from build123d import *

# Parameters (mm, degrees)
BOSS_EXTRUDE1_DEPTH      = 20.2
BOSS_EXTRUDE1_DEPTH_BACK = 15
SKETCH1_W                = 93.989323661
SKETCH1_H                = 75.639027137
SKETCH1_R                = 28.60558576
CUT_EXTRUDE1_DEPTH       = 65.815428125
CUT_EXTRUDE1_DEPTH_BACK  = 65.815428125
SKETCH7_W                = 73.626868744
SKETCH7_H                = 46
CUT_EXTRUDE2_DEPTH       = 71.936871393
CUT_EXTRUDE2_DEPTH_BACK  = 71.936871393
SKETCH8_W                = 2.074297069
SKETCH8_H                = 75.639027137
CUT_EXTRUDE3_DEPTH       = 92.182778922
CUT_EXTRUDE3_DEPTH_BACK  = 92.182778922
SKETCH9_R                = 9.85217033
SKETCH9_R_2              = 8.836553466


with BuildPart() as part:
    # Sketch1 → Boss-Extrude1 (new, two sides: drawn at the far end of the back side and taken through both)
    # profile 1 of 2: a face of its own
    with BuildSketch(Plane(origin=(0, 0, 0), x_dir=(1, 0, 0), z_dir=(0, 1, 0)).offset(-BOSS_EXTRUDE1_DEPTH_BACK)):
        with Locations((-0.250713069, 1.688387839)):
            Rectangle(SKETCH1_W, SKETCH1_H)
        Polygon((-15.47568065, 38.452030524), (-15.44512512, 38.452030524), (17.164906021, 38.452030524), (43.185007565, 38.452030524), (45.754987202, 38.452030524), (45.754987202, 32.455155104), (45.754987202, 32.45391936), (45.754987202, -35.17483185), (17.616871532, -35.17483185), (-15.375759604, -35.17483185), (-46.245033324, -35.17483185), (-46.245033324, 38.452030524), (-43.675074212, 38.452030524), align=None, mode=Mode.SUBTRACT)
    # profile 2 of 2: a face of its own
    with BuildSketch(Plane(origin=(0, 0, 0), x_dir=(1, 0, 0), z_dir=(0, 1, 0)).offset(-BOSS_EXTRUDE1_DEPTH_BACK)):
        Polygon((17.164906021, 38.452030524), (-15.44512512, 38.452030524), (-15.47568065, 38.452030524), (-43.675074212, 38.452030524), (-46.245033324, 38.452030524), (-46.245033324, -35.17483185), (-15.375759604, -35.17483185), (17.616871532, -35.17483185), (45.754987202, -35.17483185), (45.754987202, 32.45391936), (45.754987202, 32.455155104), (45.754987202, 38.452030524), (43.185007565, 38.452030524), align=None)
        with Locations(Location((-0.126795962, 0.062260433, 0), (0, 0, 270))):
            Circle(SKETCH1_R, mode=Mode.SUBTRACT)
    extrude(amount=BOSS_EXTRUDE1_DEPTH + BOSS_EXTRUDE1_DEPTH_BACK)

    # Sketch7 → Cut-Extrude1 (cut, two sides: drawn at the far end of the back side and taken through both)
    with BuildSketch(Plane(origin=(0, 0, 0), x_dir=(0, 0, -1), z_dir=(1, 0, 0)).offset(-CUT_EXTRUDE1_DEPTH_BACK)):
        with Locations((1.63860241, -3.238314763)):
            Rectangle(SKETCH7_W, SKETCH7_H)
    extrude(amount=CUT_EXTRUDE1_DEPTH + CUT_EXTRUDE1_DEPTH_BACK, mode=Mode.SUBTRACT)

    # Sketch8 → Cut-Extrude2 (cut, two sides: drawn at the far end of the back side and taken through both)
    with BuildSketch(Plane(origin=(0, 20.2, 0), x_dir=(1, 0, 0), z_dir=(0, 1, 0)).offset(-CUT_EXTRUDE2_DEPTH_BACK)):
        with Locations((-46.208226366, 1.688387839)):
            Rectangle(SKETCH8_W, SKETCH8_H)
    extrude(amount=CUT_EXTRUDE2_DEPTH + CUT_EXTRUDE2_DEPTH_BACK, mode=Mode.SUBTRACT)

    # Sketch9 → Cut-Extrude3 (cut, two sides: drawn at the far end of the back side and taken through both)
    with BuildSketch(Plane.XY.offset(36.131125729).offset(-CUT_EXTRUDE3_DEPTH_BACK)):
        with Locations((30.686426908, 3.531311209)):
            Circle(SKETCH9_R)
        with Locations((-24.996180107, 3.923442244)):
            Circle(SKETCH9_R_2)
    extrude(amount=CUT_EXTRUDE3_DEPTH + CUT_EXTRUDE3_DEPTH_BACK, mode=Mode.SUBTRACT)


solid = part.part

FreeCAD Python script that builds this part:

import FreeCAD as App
import Part
import Sketcher
Q = App.Units.Quantity

doc = App.newDocument("Part")
body = doc.addObject("PartDesign::Body", "Body")

sketch1 = body.newObject("Sketcher::SketchObject", "Sketch")
sketch1.AttachmentSupport = (doc.getObject("XZ_Plane"), [""])
sketch1.MapMode = "FlatFace"
sketch1.addGeometry(Part.LineSegment(App.Vector(-47, -40, 0), App.Vector(-47, 36, 0)), False)
sketch1.addGeometry(Part.LineSegment(App.Vector(-47, 36, 0), App.Vector(47, 36, 0)), False)
sketch1.addGeometry(Part.LineSegment(App.Vector(47, 36, 0), App.Vector(47, -40, 0)), False)
sketch1.addGeometry(Part.LineSegment(App.Vector(47, -40, 0), App.Vector(-47, -40, 0)), False)
sketch1.addGeometry(Part.Circle(App.Vector(0, 0, 0), App.Vector(0, 0, 1), 29), False)
sketch1.addConstraint(Sketcher.Constraint("Coincident", 0, 2, 1, 1))
sketch1.addConstraint(Sketcher.Constraint("Coincident", 1, 2, 2, 1))
sketch1.addConstraint(Sketcher.Constraint("Coincident", 2, 2, 3, 1))
sketch1.addConstraint(Sketcher.Constraint("Coincident", 3, 2, 0, 1))
sketch1.addConstraint(Sketcher.Constraint("Vertical", 0))
sketch1.addConstraint(Sketcher.Constraint("Horizontal", 1))
sketch1.addConstraint(Sketcher.Constraint("Vertical", 2))
sketch1.addConstraint(Sketcher.Constraint("Horizontal", 3))
sketch1.addConstraint(Sketcher.Constraint("Diameter", 4, Q("57.211172 mm")))
sketch1.addConstraint(Sketcher.Constraint("DistanceY", 2, 2, -1, 1, Q("39.507901 mm")))
sketch1.addConstraint(Sketcher.Constraint("DistanceX", 1, 1, 1, 2, Q("93.989324 mm")))
sketch1.addConstraint(Sketcher.Constraint("DistanceY", 0, 1, 0, 2, Q("75.639027 mm")))
sketch1.addConstraint(Sketcher.Constraint("DistanceY", 4, 3, -1, 1, Q("0.06226 mm")))
sketch1.addConstraint(Sketcher.Constraint("DistanceX", -1, 1, 1, 2, Q("46.743949 mm")))
sketch1.addConstraint(Sketcher.Constraint("DistanceX", 0, 2, 4, 3, Q("47.118579 mm")))
pad1 = body.newObject("PartDesign::Pad", "Pad")
pad1.Profile = sketch1
pad1.Type = "TwoLengths"
pad1.Length = 20.2
pad1.Length2 = 15
pad1.Reversed = True

sketch2 = body.newObject("Sketcher::SketchObject", "Sketch001")
sketch2.AttachmentSupport = (doc.getObject("YZ_Plane"), [""])
sketch2.MapMode = "FlatFace"
sketch2.addGeometry(Part.LineSegment(App.Vector(20, 35, 0), App.Vector(-26, 35, 0)), False)
sketch2.addGeometry(Part.LineSegment(App.Vector(-26, 35, 0), App.Vector(-26, -38, 0)), False)
sketch2.addGeometry(Part.LineSegment(App.Vector(-26, -38, 0), App.Vector(20, -38, 0)), False)
sketch2.addGeometry(Part.LineSegment(App.Vector(20, -38, 0), App.Vector(20, 35, 0)), False)
sketch2.addConstraint(Sketcher.Constraint("Coincident", 0, 2, 1, 1))
sketch2.addConstraint(Sketcher.Constraint("Coincident", 1, 2, 2, 1))
sketch2.addConstraint(Sketcher.Constraint("Coincident", 2, 2, 3, 1))
sketch2.addConstraint(Sketcher.Constraint("Coincident", 3, 2, 0, 1))
sketch2.addConstraint(Sketcher.Constraint("Horizontal", 0))
sketch2.addConstraint(Sketcher.Constraint("Vertical", 1))
sketch2.addConstraint(Sketcher.Constraint("Horizontal", 2))
sketch2.addConstraint(Sketcher.Constraint("Vertical", 3))
sketch2.addConstraint(Sketcher.Constraint("DistanceX", 0, 2, 0, 1, Q("46 mm")))
sketch2.addConstraint(Sketcher.Constraint("DistanceY", 1, 2, 1, 1, Q("73.626869 mm")))
sketch2.addConstraint(Sketcher.Constraint("DistanceY", -1, 1, 0, 2, Q("35.174832 mm")))
sketch2.addConstraint(Sketcher.Constraint("DistanceX", 0, 2, -1, 1, Q("26.238315 mm")))
pocket1 = body.newObject("PartDesign::Pocket", "Pocket")
pocket1.Profile = sketch2
pocket1.Type = "ThroughAll"
pocket1.Midplane = True

sketch3 = body.newObject("Sketcher::SketchObject", "Sketch002")
sketch3.AttachmentSupport = (doc.getObject("XZ_Plane"), [""])
sketch3.MapMode = "FlatFace"
sketch3.AttachmentOffset = App.Placement(App.Vector(0, 0, -20.2), App.Rotation())
sketch3.addGeometry(Part.LineSegment(App.Vector(-47.2, -39.5, 0), App.Vector(-47.2, 36.1, 0)), False)
sketch3.addGeometry(Part.LineSegment(App.Vector(-47.2, 36.1, 0), App.Vector(-45.2, 36.1, 0)), False)
sketch3.addGeometry(Part.LineSegment(App.Vector(-45.2, 36.1, 0), App.Vector(-45.2, -39.5, 0)), False)
sketch3.addGeometry(Part.LineSegment(App.Vector(-45.2, -39.5, 0), App.Vector(-47.2, -39.5, 0)), False)
sketch3.addConstraint(Sketcher.Constraint("Coincident", 0, 2, 1, 1))
sketch3.addConstraint(Sketcher.Constraint("Coincident", 1, 2, 2, 1))
sketch3.addConstraint(Sketcher.Constraint("Coincident", 2, 2, 3, 1))
sketch3.addConstraint(Sketcher.Constraint("Coincident", 3, 2, 0, 1))
sketch3.addConstraint(Sketcher.Constraint("Vertical", 0))
sketch3.addConstraint(Sketcher.Constraint("Horizontal", 1))
sketch3.addConstraint(Sketcher.Constraint("Vertical", 2))
sketch3.addConstraint(Sketcher.Constraint("Horizontal", 3))
sketch3.addConstraint(Sketcher.Constraint("DistanceY", 2, 2, -1, 1, Q("39.507901 mm")))
sketch3.addConstraint(Sketcher.Constraint("DistanceX", 1, 1, 1, 2, Q("2.074297 mm")))
sketch3.addConstraint(Sketcher.Constraint("DistanceY", 0, 1, 0, 2, Q("75.639027 mm")))
sketch3.addConstraint(Sketcher.Constraint("DistanceX", 0, 2, -1, 1, Q("47.245375 mm")))
pocket2 = body.newObject("PartDesign::Pocket", "Pocket001")
pocket2.Profile = sketch3
pocket2.Type = "ThroughAll"
pocket2.Midplane = True

sketch4 = body.newObject("Sketcher::SketchObject", "Sketch003")
sketch4.AttachmentSupport = (doc.getObject("XY_Plane"), [""])
sketch4.MapMode = "FlatFace"
sketch4.AttachmentOffset = App.Placement(App.Vector(0, 0, 36.131126), App.Rotation())
sketch4.addGeometry(Part.Circle(App.Vector(31, 4, 0), App.Vector(0, 0, 1), 10), False)
sketch4.addGeometry(Part.Circle(App.Vector(-25, 4, 0), App.Vector(0, 0, 1), 9), False)
sketch4.addConstraint(Sketcher.Constraint("Diameter", 0, Q("19.704341 mm")))
sketch4.addConstraint(Sketcher.Constraint("Diameter", 1, Q("17.673107 mm")))
sketch4.addConstraint(Sketcher.Constraint("DistanceY", -1, 1, 0, 3, Q("3.531311 mm")))
sketch4.addConstraint(Sketcher.Constraint("DistanceX", 1, 3, -1, 1, Q("24.99618 mm")))
sketch4.addConstraint(Sketcher.Constraint("DistanceY", 0, 3, 1, 3, Q("0.392131 mm")))
sketch4.addConstraint(Sketcher.Constraint("DistanceX", -1, 1, 0, 3, Q("30.686427 mm")))
pocket3 = body.newObject("PartDesign::Pocket", "Pocket002")
pocket3.Profile = sketch4
pocket3.Type = "ThroughAll"
pocket3.Midplane = True

doc.recompute()
